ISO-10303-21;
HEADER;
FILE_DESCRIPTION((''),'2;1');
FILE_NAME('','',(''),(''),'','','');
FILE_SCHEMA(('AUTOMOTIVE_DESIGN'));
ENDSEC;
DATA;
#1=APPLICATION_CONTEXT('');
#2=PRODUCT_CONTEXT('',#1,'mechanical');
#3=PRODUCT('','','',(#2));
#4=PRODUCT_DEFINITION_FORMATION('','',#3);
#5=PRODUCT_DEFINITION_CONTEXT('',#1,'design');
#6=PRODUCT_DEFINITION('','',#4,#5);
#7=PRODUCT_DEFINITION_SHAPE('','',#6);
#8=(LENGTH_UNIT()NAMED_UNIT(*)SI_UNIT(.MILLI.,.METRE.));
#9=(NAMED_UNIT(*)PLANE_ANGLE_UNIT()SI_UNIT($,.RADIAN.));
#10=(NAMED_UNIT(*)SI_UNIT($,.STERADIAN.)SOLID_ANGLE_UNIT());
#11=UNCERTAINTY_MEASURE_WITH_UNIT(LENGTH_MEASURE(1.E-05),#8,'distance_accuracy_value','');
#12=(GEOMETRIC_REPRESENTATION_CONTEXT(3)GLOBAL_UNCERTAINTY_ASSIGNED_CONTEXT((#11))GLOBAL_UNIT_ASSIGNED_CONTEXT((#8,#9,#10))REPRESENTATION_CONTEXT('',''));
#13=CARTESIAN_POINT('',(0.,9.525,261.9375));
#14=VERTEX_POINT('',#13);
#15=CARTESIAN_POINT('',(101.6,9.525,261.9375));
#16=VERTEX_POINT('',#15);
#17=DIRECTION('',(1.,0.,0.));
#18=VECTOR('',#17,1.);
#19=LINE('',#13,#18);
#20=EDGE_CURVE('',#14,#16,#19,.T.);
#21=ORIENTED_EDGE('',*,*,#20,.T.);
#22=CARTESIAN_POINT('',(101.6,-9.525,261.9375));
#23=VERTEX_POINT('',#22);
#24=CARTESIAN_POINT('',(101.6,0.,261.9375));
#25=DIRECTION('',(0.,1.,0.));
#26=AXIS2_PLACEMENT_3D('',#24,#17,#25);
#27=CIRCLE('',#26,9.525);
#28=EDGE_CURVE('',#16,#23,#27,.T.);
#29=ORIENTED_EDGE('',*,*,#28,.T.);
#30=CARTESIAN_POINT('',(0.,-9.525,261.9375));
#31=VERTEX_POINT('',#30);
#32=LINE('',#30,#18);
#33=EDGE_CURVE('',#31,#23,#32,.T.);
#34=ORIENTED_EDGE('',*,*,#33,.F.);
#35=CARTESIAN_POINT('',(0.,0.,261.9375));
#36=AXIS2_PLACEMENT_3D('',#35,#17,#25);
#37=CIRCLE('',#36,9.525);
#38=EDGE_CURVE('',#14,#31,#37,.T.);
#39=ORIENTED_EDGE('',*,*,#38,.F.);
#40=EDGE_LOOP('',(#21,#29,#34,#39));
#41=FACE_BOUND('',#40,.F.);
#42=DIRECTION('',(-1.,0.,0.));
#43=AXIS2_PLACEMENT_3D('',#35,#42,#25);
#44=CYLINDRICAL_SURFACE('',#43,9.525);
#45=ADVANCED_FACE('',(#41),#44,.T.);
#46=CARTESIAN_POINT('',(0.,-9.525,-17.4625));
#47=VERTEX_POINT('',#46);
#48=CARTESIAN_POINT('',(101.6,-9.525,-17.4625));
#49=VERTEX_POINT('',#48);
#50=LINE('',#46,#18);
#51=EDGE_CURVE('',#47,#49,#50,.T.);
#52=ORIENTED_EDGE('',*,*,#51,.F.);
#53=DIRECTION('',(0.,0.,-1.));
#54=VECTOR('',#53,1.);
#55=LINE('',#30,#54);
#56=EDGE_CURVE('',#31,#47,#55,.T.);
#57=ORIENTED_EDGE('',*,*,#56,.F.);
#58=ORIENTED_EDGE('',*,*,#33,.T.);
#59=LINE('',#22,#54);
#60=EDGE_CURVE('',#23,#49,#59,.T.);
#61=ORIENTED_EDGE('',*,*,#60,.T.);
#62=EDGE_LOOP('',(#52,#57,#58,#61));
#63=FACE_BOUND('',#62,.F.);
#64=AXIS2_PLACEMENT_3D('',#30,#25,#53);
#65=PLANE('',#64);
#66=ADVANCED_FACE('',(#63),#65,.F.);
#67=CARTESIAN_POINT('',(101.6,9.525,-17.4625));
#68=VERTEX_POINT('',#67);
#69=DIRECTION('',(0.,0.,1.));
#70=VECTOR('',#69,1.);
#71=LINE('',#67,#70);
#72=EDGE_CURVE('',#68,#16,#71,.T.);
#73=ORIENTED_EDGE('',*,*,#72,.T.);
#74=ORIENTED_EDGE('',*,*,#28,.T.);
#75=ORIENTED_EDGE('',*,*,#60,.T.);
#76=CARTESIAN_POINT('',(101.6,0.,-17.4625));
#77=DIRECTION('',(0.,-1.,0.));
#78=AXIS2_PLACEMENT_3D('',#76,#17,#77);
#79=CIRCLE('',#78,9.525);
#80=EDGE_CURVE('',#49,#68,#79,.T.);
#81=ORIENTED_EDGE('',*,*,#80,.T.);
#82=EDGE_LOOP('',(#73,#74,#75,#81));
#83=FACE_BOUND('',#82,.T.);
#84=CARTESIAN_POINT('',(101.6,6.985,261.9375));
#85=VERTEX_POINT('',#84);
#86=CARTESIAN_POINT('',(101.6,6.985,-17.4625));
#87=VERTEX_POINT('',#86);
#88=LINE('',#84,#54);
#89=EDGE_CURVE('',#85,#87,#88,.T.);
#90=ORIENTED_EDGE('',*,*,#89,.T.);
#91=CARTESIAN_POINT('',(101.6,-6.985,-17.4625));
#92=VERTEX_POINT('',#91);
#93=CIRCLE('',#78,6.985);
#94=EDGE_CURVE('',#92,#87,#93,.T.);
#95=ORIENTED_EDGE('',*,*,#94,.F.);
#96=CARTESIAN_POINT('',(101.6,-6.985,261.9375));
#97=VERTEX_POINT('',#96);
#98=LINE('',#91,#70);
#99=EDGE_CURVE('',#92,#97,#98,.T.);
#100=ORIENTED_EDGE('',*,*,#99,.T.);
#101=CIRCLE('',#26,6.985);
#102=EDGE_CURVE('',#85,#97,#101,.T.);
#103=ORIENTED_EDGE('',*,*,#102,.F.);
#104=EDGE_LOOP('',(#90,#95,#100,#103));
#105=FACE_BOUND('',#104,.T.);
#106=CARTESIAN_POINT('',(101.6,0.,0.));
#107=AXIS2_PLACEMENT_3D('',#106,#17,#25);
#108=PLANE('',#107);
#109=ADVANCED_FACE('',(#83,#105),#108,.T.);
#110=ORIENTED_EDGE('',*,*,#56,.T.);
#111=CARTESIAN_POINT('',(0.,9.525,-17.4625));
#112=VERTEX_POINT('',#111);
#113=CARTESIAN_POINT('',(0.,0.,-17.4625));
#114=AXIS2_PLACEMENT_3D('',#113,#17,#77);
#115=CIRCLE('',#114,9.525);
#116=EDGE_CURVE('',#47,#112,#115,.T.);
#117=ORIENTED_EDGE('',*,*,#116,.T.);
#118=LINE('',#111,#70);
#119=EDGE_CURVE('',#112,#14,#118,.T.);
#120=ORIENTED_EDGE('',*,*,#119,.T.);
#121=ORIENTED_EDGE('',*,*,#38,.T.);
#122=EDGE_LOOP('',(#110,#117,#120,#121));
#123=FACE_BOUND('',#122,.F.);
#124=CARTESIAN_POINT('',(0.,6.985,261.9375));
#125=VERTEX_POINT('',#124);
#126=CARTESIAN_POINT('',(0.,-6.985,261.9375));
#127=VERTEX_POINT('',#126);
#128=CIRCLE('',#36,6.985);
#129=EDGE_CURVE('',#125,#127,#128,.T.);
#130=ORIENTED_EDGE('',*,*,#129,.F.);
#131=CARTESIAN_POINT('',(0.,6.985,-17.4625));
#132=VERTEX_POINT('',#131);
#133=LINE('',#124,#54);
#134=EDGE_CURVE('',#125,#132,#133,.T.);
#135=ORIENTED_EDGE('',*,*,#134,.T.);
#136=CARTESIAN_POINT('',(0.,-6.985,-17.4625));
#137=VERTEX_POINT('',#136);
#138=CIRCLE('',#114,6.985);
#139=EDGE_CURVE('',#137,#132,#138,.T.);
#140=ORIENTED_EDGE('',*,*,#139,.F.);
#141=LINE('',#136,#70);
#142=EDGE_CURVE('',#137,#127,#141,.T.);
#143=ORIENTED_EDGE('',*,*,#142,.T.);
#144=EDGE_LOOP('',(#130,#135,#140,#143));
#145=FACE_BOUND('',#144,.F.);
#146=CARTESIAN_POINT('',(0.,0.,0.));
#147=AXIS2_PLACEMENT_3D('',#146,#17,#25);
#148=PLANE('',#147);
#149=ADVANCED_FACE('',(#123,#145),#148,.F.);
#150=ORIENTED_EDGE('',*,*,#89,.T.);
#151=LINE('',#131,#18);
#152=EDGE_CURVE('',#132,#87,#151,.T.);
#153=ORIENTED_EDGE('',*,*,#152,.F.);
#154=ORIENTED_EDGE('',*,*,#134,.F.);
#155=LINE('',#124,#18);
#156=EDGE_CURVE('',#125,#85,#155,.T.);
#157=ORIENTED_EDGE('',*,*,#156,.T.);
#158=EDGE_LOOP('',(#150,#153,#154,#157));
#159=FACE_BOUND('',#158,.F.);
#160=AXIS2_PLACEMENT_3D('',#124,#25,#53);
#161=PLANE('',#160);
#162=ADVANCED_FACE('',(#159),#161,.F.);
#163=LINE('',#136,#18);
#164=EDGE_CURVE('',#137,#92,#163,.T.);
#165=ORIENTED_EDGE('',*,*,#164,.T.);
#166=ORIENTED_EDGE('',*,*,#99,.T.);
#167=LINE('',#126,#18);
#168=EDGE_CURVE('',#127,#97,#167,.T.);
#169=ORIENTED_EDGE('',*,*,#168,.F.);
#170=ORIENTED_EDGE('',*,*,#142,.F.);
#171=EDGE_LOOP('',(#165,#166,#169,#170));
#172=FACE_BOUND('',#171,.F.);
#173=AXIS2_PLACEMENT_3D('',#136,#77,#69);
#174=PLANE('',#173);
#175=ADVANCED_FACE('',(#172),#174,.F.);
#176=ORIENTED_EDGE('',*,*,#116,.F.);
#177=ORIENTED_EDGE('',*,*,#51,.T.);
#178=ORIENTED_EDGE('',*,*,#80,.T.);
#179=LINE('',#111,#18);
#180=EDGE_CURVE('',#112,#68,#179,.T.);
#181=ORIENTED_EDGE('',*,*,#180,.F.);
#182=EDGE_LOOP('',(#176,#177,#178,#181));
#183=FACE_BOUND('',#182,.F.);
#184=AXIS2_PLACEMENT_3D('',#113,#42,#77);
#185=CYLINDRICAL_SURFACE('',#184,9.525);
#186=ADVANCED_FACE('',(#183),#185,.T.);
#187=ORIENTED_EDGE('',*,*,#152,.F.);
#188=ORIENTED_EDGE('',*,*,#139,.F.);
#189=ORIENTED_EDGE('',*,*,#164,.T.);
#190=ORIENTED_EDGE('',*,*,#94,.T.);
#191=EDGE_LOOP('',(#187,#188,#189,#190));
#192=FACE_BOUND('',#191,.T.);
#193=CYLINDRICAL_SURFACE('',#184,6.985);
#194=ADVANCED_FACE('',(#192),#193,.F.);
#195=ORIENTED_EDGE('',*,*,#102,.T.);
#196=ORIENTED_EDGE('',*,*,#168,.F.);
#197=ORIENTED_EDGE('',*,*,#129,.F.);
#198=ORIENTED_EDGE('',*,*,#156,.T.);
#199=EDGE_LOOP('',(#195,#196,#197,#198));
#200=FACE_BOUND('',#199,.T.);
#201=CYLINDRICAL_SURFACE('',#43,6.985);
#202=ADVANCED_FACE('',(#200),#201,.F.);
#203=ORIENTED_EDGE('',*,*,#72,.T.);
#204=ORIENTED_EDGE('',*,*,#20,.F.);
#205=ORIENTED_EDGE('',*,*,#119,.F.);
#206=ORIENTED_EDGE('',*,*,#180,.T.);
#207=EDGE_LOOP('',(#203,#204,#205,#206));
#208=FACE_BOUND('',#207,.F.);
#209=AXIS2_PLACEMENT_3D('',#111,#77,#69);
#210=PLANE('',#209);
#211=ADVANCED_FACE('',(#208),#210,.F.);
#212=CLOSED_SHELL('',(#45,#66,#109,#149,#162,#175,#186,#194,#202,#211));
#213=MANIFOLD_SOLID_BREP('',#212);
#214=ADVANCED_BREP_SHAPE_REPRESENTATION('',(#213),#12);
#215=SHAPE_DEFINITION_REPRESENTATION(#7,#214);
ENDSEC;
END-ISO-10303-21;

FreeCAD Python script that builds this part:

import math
import FreeCAD as App
import Part
import Sketcher

V = App.Vector
Q = App.Units.Quantity

doc = App.newDocument("Part")
params = doc.addObject("Spreadsheet::Sheet", "Params")
for row, (alias, value) in enumerate([
    ("sketch1_height", "11 in"),
    ("sketch1_radius", "0.375 in"),
    ("sketch1_radius2", "0.275 in"),
    ("pad1_length", "4 in"),
], start=1):
    params.set(f"A{row}", alias)
    params.set(f"B{row}", "=" + value)
    params.setAlias(f"B{row}", alias)

body = doc.addObject("PartDesign::Body", "Body")

sketch1 = body.newObject("Sketcher::SketchObject", "Sketch")
sketch1.AttachmentSupport = (doc.getObject("YZ_Plane"), [""])
sketch1.MapMode = "FlatFace"
sketch1.addGeometry([
    Part.LineSegment(V(-9.525, 261.9375, 0), V(-9.525, -17.4625, 0)),
    Part.ArcOfCircle(Part.Circle(V(0, -17.4625, 0), V(0, 0, 1), 9.525), math.radians(180), math.radians(360)),
    Part.LineSegment(V(9.525, -17.4625, 0), V(9.525, 261.9375, 0)),
    Part.ArcOfCircle(Part.Circle(V(0, 261.9375, 0), V(0, 0, 1), 9.525), math.radians(0), math.radians(180)),
    Part.ArcOfCircle(Part.Circle(V(0, -17.4625, 0), V(0, 0, 1), 6.985), math.radians(180), math.radians(360)),
    Part.LineSegment(V(-6.985, -17.4625, 0), V(-6.985, 261.9375, 0)),
    Part.ArcOfCircle(Part.Circle(V(0, 261.9375, 0), V(0, 0, 1), 6.985), math.radians(0), math.radians(180)),
    Part.LineSegment(V(6.985, 261.9375, 0), V(6.985, -17.4625, 0)),
], False)
sketch1.addConstraint([
    Sketcher.Constraint("Tangent", 0, 2, 1, 1),
    Sketcher.Constraint("Tangent", 1, 2, 2, 1),
    Sketcher.Constraint("Tangent", 2, 2, 3, 1),
    Sketcher.Constraint("Tangent", 3, 2, 0, 1),
    Sketcher.Constraint("Tangent", 4, 1, 5, 1),
    Sketcher.Constraint("Tangent", 5, 2, 6, 2),
    Sketcher.Constraint("Tangent", 6, 1, 7, 1),
    Sketcher.Constraint("Tangent", 7, 2, 4, 2),
    Sketcher.Constraint("Vertical", 0),
    Sketcher.Constraint("Vertical", 2),
    Sketcher.Constraint("Vertical", 5),
    Sketcher.Constraint("Vertical", 7),
    Sketcher.Constraint("Coincident", 4, 3, 1, 3),
    Sketcher.Constraint("PointOnObject", 1, 3, -2),
    Sketcher.Constraint("Horizontal", 6, 3, 2, 2),
    Sketcher.Constraint("DistanceY", 0, 2, 0, 1, Q("11 in")),
    Sketcher.Constraint("Radius", 1, Q("0.375 in")),
    Sketcher.Constraint("Radius", 4, Q("0.275 in")),
    Sketcher.Constraint("DistanceY", 1, 3, -1, 1, Q("0.6875 in")),
])
sketch1.setExpression("Constraints[15]", "Params.sketch1_height")
sketch1.setExpression("Constraints[16]", "Params.sketch1_radius")
sketch1.setExpression("Constraints[17]", "Params.sketch1_radius2")
pad1 = body.newObject("PartDesign::Pad", "Pad")
pad1.Profile = sketch1
pad1.setExpression("Length", "Params.pad1_length")

doc.recompute()
